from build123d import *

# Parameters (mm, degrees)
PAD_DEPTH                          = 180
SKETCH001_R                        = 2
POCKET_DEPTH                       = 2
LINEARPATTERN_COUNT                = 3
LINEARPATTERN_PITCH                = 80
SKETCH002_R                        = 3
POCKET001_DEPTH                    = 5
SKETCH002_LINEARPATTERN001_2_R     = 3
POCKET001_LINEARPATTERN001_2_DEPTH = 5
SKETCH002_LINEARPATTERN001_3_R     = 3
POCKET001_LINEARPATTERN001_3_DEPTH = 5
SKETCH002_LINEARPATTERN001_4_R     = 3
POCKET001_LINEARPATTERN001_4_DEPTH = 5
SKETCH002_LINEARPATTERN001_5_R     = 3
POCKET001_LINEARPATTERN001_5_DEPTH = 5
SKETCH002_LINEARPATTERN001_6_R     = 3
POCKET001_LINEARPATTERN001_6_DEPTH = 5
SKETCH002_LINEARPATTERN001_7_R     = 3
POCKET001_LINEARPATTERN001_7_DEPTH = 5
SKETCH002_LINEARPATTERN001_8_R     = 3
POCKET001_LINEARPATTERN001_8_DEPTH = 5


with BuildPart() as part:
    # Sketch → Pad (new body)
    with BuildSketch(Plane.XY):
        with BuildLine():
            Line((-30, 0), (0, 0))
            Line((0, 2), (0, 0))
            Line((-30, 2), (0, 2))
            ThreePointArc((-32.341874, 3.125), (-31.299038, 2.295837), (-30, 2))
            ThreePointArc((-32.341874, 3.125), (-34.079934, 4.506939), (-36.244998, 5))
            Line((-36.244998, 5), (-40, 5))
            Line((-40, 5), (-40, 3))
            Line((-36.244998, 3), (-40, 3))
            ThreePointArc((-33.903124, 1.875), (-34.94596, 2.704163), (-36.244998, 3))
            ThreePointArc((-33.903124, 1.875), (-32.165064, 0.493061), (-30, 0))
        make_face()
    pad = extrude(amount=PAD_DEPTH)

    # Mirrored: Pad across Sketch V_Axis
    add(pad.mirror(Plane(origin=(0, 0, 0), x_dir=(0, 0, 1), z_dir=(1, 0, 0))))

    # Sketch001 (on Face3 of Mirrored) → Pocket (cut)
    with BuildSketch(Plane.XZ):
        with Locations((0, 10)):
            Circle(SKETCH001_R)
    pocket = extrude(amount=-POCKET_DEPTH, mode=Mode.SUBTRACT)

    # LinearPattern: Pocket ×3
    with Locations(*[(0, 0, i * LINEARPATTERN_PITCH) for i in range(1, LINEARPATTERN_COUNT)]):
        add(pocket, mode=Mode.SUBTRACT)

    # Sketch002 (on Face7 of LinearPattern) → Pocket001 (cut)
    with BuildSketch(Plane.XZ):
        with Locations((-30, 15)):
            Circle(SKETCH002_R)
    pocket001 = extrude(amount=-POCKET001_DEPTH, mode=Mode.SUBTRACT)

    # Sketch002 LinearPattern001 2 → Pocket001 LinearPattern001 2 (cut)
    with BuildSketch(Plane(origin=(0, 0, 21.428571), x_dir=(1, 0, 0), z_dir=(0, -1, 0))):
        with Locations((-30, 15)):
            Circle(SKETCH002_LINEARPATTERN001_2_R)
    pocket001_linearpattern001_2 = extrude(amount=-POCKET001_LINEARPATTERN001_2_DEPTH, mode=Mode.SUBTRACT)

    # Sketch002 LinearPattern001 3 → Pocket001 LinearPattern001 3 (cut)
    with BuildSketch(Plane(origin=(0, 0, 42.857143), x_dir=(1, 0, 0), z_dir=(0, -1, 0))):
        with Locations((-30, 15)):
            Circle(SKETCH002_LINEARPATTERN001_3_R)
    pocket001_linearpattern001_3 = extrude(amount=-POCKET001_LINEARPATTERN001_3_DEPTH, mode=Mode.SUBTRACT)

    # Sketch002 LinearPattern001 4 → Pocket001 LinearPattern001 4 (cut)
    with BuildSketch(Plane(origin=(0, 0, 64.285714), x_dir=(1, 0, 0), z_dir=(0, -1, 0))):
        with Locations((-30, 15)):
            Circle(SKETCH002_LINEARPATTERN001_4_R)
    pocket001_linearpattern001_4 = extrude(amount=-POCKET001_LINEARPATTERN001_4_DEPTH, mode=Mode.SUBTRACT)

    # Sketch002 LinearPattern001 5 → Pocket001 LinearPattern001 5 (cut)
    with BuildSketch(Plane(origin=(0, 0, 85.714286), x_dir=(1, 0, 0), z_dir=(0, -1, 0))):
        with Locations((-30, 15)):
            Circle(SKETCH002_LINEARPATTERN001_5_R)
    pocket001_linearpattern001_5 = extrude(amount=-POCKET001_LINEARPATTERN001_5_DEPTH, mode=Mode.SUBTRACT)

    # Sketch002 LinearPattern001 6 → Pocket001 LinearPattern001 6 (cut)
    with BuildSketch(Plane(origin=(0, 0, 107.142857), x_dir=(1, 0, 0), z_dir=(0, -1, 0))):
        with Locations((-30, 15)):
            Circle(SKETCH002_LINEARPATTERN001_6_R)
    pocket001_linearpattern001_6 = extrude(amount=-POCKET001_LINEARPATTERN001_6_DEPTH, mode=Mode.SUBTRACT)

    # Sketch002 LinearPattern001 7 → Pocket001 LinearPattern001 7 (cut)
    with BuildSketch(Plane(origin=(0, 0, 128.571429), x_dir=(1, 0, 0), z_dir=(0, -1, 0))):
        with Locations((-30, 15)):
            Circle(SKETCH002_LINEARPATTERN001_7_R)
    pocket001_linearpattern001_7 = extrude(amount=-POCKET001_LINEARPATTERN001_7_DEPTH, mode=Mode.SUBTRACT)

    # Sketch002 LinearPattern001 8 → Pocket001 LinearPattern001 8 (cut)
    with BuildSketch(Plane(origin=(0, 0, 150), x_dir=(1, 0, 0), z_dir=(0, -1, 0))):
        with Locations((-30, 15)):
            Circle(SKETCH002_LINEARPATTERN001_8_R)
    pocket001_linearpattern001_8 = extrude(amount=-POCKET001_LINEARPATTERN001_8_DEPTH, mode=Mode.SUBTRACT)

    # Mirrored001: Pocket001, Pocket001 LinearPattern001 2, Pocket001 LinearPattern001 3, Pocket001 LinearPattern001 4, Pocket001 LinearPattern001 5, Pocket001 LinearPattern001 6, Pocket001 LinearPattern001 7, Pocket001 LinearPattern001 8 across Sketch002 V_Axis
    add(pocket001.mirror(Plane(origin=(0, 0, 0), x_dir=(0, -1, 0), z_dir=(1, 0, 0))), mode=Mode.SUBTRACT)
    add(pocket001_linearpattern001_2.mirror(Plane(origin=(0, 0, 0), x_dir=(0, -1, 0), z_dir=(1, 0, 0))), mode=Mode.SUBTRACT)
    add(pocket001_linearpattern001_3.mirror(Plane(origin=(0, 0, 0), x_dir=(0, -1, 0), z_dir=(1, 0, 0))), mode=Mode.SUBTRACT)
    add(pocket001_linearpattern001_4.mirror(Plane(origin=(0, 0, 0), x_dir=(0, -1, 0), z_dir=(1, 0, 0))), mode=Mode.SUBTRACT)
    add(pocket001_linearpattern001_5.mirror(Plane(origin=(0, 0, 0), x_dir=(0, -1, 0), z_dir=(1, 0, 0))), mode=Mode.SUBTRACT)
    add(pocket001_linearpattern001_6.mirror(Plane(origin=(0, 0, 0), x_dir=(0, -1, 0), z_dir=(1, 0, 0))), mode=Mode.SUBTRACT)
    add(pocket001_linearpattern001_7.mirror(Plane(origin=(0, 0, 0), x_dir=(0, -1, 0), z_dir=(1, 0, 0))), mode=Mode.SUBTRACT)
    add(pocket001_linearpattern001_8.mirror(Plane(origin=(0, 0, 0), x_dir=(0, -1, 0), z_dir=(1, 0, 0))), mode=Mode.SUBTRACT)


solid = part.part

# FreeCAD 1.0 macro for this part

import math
import FreeCAD as App
import Part
import Sketcher

doc = App.newDocument("Part")
params = doc.addObject("Spreadsheet::Sheet", "Params")
for row, (alias, value) in enumerate([
    ("sketch1_radius", "5 mm"),
    ("sketch1_width", "30 mm"),
    ("sketch1_height", "2 mm"),
    ("pad1_length", "180 mm"),
    ("sketch2_diameter", "4 mm"),
    ("pocket1_length", "2 mm"),
    ("linearpattern_pitch", "80 mm"),
    ("sketch3_diameter", "6 mm"),
    ("pocket2_length", "5 mm"),
    ("sketch4_diameter", "6 mm"),
    ("pocket3_length", "5 mm"),
    ("sketch5_diameter", "6 mm"),
    ("pocket4_length", "5 mm"),
    ("sketch6_diameter", "6 mm"),
    ("pocket5_length", "5 mm"),
    ("sketch7_diameter", "6 mm"),
    ("pocket6_length", "5 mm"),
    ("sketch8_diameter", "6 mm"),
    ("pocket7_length", "5 mm"),
    ("sketch9_diameter", "6 mm"),
    ("pocket8_length", "5 mm"),
    ("sketch10_diameter", "6 mm"),
    ("pocket9_length", "5 mm"),
], start=1):
    params.set(f"A{row}", alias)
    params.set(f"B{row}", "=" + value)
    params.setAlias(f"B{row}", alias)

body = doc.addObject("PartDesign::Body", "Body")

# Sketch on XY plane
sketch1 = body.newObject("Sketcher::SketchObject", "Sketch")
sketch1.AttachmentSupport = (doc.getObject("XY_Plane"), [""])
sketch1.MapMode = "FlatFace"
sketch1.addGeometry([
    Part.LineSegment(App.Vector(-30, 0, 0), App.Vector(0, 0, 0)),  # 0
    Part.LineSegment(App.Vector(0, 0, 0), App.Vector(0, 2, 0)),  # 1
    Part.LineSegment(App.Vector(0, 2, 0), App.Vector(-30, 2, 0)),  # 2
    Part.ArcOfCircle(Part.Circle(App.Vector(-29.999998, 5.000003, 0), App.Vector(0, 0, 1), 3.000003), math.radians(-141.317783), math.radians(-90.000034)),  # 3
    Part.ArcOfCircle(Part.Circle(App.Vector(-36.244998, 0, 0), App.Vector(0, 0, 1), 5), math.radians(38.682187), math.radians(90.000004)),  # 4
    Part.LineSegment(App.Vector(-36.244998, 5, 0), App.Vector(-40, 5, 0)),  # 5
    Part.LineSegment(App.Vector(-40, 5, 0), App.Vector(-40, 3, 0)),  # 6
    Part.LineSegment(App.Vector(-40, 3, 0), App.Vector(-36.244998, 3, 0)),  # 7
    Part.ArcOfCircle(Part.Circle(App.Vector(-36.245, -0.000003, 0), App.Vector(0, 0, 1), 3.000003), math.radians(38.682217), math.radians(89.999966)),  # 8
    Part.ArcOfCircle(Part.Circle(App.Vector(-30, 5, 0), App.Vector(0, 0, 1), 5), math.radians(-141.317813), math.radians(-89.999996)),  # 9
], False)
sketch1.addConstraint([
    Sketcher.Constraint("Coincident", 0, 2, 1, 1),
    Sketcher.Constraint("Coincident", 1, 2, 2, 1),
    Sketcher.Constraint("Tangent", 2, 2, 3, 2),
    Sketcher.Constraint("Tangent", 3, 1, 4, 1),
    Sketcher.Constraint("Tangent", 4, 2, 5, 1),
    Sketcher.Constraint("Coincident", 5, 2, 6, 1),
    Sketcher.Constraint("Coincident", 6, 2, 7, 1),
    Sketcher.Constraint("Tangent", 7, 2, 8, 2),
    Sketcher.Constraint("Tangent", 8, 1, 9, 1),
    Sketcher.Constraint("Tangent", 9, 2, 0, 1),
    Sketcher.Constraint("Horizontal", 0),
    Sketcher.Constraint("Vertical", 1),
    Sketcher.Constraint("Horizontal", 2),
    Sketcher.Constraint("Horizontal", 5),
    Sketcher.Constraint("Vertical", 6),
    Sketcher.Constraint("Horizontal", 7),
    Sketcher.Constraint("Coincident", 0, 2, -1, 1),
    Sketcher.Constraint("Coincident", 8, 3, 4, 3),
    Sketcher.Constraint("Coincident", 9, 3, 3, 3),
    Sketcher.Constraint("Equal", 3, 8),
    Sketcher.Constraint("PointOnObject", 4, 3, -1),
    Sketcher.Constraint("Radius", 4, 5.0),
    Sketcher.Constraint("DistanceX", 0, 1, 0, 2, 30.0),
    Sketcher.Constraint("DistanceY", 1, 1, 1, 2, 2.0),
    Sketcher.Constraint("DistanceX", 5, 2, -1, 1, 40.0),
])
sketch1.setExpression("Constraints[21]", "Params.sketch1_radius")
sketch1.setExpression("Constraints[22]", "Params.sketch1_width")
sketch1.setExpression("Constraints[23]", "Params.sketch1_height")
pad1 = body.newObject("PartDesign::Pad", "Pad")
pad1.Profile = sketch1
pad1.setExpression("Length", "Params.pad1_length")
doc.recompute()

mirrored = body.newObject("PartDesign::Mirrored", "Mirrored")
mirrored.Originals = [pad1]
mirrored.MirrorPlane = (doc.getObject("YZ_Plane"), [""])
body.Tip = mirrored

# Sketch on XZ plane
sketch2 = body.newObject("Sketcher::SketchObject", "Sketch001")
sketch2.AttachmentSupport = (doc.getObject("XZ_Plane"), [""])
sketch2.MapMode = "FlatFace"
sketch2.addGeometry(Part.Circle(App.Vector(0, 10, 0), App.Vector(0, 0, 1), 2), False)
sketch2.addConstraint([
    Sketcher.Constraint("PointOnObject", 0, 3, -2),
    Sketcher.Constraint("Diameter", 0, 4.0),
    Sketcher.Constraint("DistanceY", -1, 1, 0, 3, 10.0),
])
sketch2.setExpression("Constraints[1]", "Params.sketch2_diameter")
pocket1 = body.newObject("PartDesign::Pocket", "Pocket")
pocket1.Profile = sketch2
pocket1.setExpression("Length", "Params.pocket1_length")
doc.recompute()

linearpattern = body.newObject("PartDesign::LinearPattern", "LinearPattern")
linearpattern.Originals = [pocket1]
linearpattern.Direction = (doc.getObject("Z_Axis"), [""])
linearpattern.Mode = "offset"
linearpattern.setExpression("Offset", "Params.linearpattern_pitch")
linearpattern.Occurrences = 3
body.Tip = linearpattern

# Sketch on XZ plane
sketch3 = body.newObject("Sketcher::SketchObject", "Sketch002")
sketch3.AttachmentSupport = (doc.getObject("XZ_Plane"), [""])
sketch3.MapMode = "FlatFace"
sketch3.addGeometry(Part.Circle(App.Vector(-30, 15, 0), App.Vector(0, 0, 1), 3), False)
sketch3.addConstraint([
    Sketcher.Constraint("Diameter", 0, 6.0),
    Sketcher.Constraint("DistanceX", 0, 3, -1, 1, 30.0),
    Sketcher.Constraint("DistanceY", -1, 1, 0, 3, 15.0),
])
sketch3.setExpression("Constraints[0]", "Params.sketch3_diameter")
pocket2 = body.newObject("PartDesign::Pocket", "Pocket001")
pocket2.Profile = sketch3
pocket2.setExpression("Length", "Params.pocket2_length")

# Sketch on XZ plane
sketch4 = body.newObject("Sketcher::SketchObject", "Sketch003")
sketch4.AttachmentSupport = (doc.getObject("XZ_Plane"), [""])
sketch4.MapMode = "FlatFace"
sketch4.addGeometry(Part.Circle(App.Vector(-30, 36.428571, 0), App.Vector(0, 0, 1), 3), False)
sketch4.addConstraint([
    Sketcher.Constraint("Diameter", 0, 6.0),
    Sketcher.Constraint("DistanceX", 0, 3, -1, 1, 30.0),
    Sketcher.Constraint("DistanceY", -1, 1, 0, 3, 36.428571),
])
sketch4.setExpression("Constraints[0]", "Params.sketch4_diameter")
pocket3 = body.newObject("PartDesign::Pocket", "Pocket002")
pocket3.Profile = sketch4
pocket3.setExpression("Length", "Params.pocket3_length")

# Sketch on XZ plane
sketch5 = body.newObject("Sketcher::SketchObject", "Sketch004")
sketch5.AttachmentSupport = (doc.getObject("XZ_Plane"), [""])
sketch5.MapMode = "FlatFace"
sketch5.addGeometry(Part.Circle(App.Vector(-30, 57.857143, 0), App.Vector(0, 0, 1), 3), False)
sketch5.addConstraint([
    Sketcher.Constraint("Diameter", 0, 6.0),
    Sketcher.Constraint("DistanceX", 0, 3, -1, 1, 30.0),
    Sketcher.Constraint("DistanceY", -1, 1, 0, 3, 57.857143),
])
sketch5.setExpression("Constraints[0]", "Params.sketch5_diameter")
pocket4 = body.newObject("PartDesign::Pocket", "Pocket003")
pocket4.Profile = sketch5
pocket4.setExpression("Length", "Params.pocket4_length")

# Sketch on XZ plane
sketch6 = body.newObject("Sketcher::SketchObject", "Sketch005")
sketch6.AttachmentSupport = (doc.getObject("XZ_Plane"), [""])
sketch6.MapMode = "FlatFace"
sketch6.addGeometry(Part.Circle(App.Vector(-30, 79.285714, 0), App.Vector(0, 0, 1), 3), False)
sketch6.addConstraint([
    Sketcher.Constraint("Diameter", 0, 6.0),
    Sketcher.Constraint("DistanceX", 0, 3, -1, 1, 30.0),
    Sketcher.Constraint("DistanceY", -1, 1, 0, 3, 79.285714),
])
sketch6.setExpression("Constraints[0]", "Params.sketch6_diameter")
pocket5 = body.newObject("PartDesign::Pocket", "Pocket004")
pocket5.Profile = sketch6
pocket5.setExpression("Length", "Params.pocket5_length")

# Sketch on XZ plane
sketch7 = body.newObject("Sketcher::SketchObject", "Sketch006")
sketch7.AttachmentSupport = (doc.getObject("XZ_Plane"), [""])
sketch7.MapMode = "FlatFace"
sketch7.addGeometry(Part.Circle(App.Vector(-30, 100.714286, 0), App.Vector(0, 0, 1), 3), False)
sketch7.addConstraint([
    Sketcher.Constraint("Diameter", 0, 6.0),
    Sketcher.Constraint("DistanceX", 0, 3, -1, 1, 30.0),
    Sketcher.Constraint("DistanceY", -1, 1, 0, 3, 100.714286),
])
sketch7.setExpression("Constraints[0]", "Params.sketch7_diameter")
pocket6 = body.newObject("PartDesign::Pocket", "Pocket005")
pocket6.Profile = sketch7
pocket6.setExpression("Length", "Params.pocket6_length")

# Sketch on XZ plane
sketch8 = body.newObject("Sketcher::SketchObject", "Sketch007")
sketch8.AttachmentSupport = (doc.getObject("XZ_Plane"), [""])
sketch8.MapMode = "FlatFace"
sketch8.addGeometry(Part.Circle(App.Vector(-30, 122.142857, 0), App.Vector(0, 0, 1), 3), False)
sketch8.addConstraint([
    Sketcher.Constraint("Diameter", 0, 6.0),
    Sketcher.Constraint("DistanceX", 0, 3, -1, 1, 30.0),
    Sketcher.Constraint("DistanceY", -1, 1, 0, 3, 122.142857),
])
sketch8.setExpression("Constraints[0]", "Params.sketch8_diameter")
pocket7 = body.newObject("PartDesign::Pocket", "Pocket006")
pocket7.Profile = sketch8
pocket7.setExpression("Length", "Params.pocket7_length")

# Sketch on XZ plane
sketch9 = body.newObject("Sketcher::SketchObject", "Sketch008")
sketch9.AttachmentSupport = (doc.getObject("XZ_Plane"), [""])
sketch9.MapMode = "FlatFace"
sketch9.addGeometry(Part.Circle(App.Vector(-30, 143.571429, 0), App.Vector(0, 0, 1), 3), False)
sketch9.addConstraint([
    Sketcher.Constraint("Diameter", 0, 6.0),
    Sketcher.Constraint("DistanceX", 0, 3, -1, 1, 30.0),
    Sketcher.Constraint("DistanceY", -1, 1, 0, 3, 143.571429),
])
sketch9.setExpression("Constraints[0]", "Params.sketch9_diameter")
pocket8 = body.newObject("PartDesign::Pocket", "Pocket007")
pocket8.Profile = sketch9
pocket8.setExpression("Length", "Params.pocket8_length")

# Sketch on XZ plane
sketch10 = body.newObject("Sketcher::SketchObject", "Sketch009")
sketch10.AttachmentSupport = (doc.getObject("XZ_Plane"), [""])
sketch10.MapMode = "FlatFace"
sketch10.addGeometry(Part.Circle(App.Vector(-30, 165, 0), App.Vector(0, 0, 1), 3), False)
sketch10.addConstraint([
    Sketcher.Constraint("Diameter", 0, 6.0),
    Sketcher.Constraint("DistanceX", 0, 3, -1, 1, 30.0),
    Sketcher.Constraint("DistanceY", -1, 1, 0, 3, 165.0),
])
sketch10.setExpression("Constraints[0]", "Params.sketch10_diameter")
pocket9 = body.newObject("PartDesign::Pocket", "Pocket008")
pocket9.Profile = sketch10
pocket9.setExpression("Length", "Params.pocket9_length")
doc.recompute()

mirrored2 = body.newObject("PartDesign::Mirrored", "Mirrored001")
mirrored2.Originals = [pocket2, pocket3, pocket4, pocket5, pocket6, pocket7, pocket8, pocket9]
mirrored2.MirrorPlane = (doc.getObject("YZ_Plane"), [""])
body.Tip = mirrored2

doc.recompute()
